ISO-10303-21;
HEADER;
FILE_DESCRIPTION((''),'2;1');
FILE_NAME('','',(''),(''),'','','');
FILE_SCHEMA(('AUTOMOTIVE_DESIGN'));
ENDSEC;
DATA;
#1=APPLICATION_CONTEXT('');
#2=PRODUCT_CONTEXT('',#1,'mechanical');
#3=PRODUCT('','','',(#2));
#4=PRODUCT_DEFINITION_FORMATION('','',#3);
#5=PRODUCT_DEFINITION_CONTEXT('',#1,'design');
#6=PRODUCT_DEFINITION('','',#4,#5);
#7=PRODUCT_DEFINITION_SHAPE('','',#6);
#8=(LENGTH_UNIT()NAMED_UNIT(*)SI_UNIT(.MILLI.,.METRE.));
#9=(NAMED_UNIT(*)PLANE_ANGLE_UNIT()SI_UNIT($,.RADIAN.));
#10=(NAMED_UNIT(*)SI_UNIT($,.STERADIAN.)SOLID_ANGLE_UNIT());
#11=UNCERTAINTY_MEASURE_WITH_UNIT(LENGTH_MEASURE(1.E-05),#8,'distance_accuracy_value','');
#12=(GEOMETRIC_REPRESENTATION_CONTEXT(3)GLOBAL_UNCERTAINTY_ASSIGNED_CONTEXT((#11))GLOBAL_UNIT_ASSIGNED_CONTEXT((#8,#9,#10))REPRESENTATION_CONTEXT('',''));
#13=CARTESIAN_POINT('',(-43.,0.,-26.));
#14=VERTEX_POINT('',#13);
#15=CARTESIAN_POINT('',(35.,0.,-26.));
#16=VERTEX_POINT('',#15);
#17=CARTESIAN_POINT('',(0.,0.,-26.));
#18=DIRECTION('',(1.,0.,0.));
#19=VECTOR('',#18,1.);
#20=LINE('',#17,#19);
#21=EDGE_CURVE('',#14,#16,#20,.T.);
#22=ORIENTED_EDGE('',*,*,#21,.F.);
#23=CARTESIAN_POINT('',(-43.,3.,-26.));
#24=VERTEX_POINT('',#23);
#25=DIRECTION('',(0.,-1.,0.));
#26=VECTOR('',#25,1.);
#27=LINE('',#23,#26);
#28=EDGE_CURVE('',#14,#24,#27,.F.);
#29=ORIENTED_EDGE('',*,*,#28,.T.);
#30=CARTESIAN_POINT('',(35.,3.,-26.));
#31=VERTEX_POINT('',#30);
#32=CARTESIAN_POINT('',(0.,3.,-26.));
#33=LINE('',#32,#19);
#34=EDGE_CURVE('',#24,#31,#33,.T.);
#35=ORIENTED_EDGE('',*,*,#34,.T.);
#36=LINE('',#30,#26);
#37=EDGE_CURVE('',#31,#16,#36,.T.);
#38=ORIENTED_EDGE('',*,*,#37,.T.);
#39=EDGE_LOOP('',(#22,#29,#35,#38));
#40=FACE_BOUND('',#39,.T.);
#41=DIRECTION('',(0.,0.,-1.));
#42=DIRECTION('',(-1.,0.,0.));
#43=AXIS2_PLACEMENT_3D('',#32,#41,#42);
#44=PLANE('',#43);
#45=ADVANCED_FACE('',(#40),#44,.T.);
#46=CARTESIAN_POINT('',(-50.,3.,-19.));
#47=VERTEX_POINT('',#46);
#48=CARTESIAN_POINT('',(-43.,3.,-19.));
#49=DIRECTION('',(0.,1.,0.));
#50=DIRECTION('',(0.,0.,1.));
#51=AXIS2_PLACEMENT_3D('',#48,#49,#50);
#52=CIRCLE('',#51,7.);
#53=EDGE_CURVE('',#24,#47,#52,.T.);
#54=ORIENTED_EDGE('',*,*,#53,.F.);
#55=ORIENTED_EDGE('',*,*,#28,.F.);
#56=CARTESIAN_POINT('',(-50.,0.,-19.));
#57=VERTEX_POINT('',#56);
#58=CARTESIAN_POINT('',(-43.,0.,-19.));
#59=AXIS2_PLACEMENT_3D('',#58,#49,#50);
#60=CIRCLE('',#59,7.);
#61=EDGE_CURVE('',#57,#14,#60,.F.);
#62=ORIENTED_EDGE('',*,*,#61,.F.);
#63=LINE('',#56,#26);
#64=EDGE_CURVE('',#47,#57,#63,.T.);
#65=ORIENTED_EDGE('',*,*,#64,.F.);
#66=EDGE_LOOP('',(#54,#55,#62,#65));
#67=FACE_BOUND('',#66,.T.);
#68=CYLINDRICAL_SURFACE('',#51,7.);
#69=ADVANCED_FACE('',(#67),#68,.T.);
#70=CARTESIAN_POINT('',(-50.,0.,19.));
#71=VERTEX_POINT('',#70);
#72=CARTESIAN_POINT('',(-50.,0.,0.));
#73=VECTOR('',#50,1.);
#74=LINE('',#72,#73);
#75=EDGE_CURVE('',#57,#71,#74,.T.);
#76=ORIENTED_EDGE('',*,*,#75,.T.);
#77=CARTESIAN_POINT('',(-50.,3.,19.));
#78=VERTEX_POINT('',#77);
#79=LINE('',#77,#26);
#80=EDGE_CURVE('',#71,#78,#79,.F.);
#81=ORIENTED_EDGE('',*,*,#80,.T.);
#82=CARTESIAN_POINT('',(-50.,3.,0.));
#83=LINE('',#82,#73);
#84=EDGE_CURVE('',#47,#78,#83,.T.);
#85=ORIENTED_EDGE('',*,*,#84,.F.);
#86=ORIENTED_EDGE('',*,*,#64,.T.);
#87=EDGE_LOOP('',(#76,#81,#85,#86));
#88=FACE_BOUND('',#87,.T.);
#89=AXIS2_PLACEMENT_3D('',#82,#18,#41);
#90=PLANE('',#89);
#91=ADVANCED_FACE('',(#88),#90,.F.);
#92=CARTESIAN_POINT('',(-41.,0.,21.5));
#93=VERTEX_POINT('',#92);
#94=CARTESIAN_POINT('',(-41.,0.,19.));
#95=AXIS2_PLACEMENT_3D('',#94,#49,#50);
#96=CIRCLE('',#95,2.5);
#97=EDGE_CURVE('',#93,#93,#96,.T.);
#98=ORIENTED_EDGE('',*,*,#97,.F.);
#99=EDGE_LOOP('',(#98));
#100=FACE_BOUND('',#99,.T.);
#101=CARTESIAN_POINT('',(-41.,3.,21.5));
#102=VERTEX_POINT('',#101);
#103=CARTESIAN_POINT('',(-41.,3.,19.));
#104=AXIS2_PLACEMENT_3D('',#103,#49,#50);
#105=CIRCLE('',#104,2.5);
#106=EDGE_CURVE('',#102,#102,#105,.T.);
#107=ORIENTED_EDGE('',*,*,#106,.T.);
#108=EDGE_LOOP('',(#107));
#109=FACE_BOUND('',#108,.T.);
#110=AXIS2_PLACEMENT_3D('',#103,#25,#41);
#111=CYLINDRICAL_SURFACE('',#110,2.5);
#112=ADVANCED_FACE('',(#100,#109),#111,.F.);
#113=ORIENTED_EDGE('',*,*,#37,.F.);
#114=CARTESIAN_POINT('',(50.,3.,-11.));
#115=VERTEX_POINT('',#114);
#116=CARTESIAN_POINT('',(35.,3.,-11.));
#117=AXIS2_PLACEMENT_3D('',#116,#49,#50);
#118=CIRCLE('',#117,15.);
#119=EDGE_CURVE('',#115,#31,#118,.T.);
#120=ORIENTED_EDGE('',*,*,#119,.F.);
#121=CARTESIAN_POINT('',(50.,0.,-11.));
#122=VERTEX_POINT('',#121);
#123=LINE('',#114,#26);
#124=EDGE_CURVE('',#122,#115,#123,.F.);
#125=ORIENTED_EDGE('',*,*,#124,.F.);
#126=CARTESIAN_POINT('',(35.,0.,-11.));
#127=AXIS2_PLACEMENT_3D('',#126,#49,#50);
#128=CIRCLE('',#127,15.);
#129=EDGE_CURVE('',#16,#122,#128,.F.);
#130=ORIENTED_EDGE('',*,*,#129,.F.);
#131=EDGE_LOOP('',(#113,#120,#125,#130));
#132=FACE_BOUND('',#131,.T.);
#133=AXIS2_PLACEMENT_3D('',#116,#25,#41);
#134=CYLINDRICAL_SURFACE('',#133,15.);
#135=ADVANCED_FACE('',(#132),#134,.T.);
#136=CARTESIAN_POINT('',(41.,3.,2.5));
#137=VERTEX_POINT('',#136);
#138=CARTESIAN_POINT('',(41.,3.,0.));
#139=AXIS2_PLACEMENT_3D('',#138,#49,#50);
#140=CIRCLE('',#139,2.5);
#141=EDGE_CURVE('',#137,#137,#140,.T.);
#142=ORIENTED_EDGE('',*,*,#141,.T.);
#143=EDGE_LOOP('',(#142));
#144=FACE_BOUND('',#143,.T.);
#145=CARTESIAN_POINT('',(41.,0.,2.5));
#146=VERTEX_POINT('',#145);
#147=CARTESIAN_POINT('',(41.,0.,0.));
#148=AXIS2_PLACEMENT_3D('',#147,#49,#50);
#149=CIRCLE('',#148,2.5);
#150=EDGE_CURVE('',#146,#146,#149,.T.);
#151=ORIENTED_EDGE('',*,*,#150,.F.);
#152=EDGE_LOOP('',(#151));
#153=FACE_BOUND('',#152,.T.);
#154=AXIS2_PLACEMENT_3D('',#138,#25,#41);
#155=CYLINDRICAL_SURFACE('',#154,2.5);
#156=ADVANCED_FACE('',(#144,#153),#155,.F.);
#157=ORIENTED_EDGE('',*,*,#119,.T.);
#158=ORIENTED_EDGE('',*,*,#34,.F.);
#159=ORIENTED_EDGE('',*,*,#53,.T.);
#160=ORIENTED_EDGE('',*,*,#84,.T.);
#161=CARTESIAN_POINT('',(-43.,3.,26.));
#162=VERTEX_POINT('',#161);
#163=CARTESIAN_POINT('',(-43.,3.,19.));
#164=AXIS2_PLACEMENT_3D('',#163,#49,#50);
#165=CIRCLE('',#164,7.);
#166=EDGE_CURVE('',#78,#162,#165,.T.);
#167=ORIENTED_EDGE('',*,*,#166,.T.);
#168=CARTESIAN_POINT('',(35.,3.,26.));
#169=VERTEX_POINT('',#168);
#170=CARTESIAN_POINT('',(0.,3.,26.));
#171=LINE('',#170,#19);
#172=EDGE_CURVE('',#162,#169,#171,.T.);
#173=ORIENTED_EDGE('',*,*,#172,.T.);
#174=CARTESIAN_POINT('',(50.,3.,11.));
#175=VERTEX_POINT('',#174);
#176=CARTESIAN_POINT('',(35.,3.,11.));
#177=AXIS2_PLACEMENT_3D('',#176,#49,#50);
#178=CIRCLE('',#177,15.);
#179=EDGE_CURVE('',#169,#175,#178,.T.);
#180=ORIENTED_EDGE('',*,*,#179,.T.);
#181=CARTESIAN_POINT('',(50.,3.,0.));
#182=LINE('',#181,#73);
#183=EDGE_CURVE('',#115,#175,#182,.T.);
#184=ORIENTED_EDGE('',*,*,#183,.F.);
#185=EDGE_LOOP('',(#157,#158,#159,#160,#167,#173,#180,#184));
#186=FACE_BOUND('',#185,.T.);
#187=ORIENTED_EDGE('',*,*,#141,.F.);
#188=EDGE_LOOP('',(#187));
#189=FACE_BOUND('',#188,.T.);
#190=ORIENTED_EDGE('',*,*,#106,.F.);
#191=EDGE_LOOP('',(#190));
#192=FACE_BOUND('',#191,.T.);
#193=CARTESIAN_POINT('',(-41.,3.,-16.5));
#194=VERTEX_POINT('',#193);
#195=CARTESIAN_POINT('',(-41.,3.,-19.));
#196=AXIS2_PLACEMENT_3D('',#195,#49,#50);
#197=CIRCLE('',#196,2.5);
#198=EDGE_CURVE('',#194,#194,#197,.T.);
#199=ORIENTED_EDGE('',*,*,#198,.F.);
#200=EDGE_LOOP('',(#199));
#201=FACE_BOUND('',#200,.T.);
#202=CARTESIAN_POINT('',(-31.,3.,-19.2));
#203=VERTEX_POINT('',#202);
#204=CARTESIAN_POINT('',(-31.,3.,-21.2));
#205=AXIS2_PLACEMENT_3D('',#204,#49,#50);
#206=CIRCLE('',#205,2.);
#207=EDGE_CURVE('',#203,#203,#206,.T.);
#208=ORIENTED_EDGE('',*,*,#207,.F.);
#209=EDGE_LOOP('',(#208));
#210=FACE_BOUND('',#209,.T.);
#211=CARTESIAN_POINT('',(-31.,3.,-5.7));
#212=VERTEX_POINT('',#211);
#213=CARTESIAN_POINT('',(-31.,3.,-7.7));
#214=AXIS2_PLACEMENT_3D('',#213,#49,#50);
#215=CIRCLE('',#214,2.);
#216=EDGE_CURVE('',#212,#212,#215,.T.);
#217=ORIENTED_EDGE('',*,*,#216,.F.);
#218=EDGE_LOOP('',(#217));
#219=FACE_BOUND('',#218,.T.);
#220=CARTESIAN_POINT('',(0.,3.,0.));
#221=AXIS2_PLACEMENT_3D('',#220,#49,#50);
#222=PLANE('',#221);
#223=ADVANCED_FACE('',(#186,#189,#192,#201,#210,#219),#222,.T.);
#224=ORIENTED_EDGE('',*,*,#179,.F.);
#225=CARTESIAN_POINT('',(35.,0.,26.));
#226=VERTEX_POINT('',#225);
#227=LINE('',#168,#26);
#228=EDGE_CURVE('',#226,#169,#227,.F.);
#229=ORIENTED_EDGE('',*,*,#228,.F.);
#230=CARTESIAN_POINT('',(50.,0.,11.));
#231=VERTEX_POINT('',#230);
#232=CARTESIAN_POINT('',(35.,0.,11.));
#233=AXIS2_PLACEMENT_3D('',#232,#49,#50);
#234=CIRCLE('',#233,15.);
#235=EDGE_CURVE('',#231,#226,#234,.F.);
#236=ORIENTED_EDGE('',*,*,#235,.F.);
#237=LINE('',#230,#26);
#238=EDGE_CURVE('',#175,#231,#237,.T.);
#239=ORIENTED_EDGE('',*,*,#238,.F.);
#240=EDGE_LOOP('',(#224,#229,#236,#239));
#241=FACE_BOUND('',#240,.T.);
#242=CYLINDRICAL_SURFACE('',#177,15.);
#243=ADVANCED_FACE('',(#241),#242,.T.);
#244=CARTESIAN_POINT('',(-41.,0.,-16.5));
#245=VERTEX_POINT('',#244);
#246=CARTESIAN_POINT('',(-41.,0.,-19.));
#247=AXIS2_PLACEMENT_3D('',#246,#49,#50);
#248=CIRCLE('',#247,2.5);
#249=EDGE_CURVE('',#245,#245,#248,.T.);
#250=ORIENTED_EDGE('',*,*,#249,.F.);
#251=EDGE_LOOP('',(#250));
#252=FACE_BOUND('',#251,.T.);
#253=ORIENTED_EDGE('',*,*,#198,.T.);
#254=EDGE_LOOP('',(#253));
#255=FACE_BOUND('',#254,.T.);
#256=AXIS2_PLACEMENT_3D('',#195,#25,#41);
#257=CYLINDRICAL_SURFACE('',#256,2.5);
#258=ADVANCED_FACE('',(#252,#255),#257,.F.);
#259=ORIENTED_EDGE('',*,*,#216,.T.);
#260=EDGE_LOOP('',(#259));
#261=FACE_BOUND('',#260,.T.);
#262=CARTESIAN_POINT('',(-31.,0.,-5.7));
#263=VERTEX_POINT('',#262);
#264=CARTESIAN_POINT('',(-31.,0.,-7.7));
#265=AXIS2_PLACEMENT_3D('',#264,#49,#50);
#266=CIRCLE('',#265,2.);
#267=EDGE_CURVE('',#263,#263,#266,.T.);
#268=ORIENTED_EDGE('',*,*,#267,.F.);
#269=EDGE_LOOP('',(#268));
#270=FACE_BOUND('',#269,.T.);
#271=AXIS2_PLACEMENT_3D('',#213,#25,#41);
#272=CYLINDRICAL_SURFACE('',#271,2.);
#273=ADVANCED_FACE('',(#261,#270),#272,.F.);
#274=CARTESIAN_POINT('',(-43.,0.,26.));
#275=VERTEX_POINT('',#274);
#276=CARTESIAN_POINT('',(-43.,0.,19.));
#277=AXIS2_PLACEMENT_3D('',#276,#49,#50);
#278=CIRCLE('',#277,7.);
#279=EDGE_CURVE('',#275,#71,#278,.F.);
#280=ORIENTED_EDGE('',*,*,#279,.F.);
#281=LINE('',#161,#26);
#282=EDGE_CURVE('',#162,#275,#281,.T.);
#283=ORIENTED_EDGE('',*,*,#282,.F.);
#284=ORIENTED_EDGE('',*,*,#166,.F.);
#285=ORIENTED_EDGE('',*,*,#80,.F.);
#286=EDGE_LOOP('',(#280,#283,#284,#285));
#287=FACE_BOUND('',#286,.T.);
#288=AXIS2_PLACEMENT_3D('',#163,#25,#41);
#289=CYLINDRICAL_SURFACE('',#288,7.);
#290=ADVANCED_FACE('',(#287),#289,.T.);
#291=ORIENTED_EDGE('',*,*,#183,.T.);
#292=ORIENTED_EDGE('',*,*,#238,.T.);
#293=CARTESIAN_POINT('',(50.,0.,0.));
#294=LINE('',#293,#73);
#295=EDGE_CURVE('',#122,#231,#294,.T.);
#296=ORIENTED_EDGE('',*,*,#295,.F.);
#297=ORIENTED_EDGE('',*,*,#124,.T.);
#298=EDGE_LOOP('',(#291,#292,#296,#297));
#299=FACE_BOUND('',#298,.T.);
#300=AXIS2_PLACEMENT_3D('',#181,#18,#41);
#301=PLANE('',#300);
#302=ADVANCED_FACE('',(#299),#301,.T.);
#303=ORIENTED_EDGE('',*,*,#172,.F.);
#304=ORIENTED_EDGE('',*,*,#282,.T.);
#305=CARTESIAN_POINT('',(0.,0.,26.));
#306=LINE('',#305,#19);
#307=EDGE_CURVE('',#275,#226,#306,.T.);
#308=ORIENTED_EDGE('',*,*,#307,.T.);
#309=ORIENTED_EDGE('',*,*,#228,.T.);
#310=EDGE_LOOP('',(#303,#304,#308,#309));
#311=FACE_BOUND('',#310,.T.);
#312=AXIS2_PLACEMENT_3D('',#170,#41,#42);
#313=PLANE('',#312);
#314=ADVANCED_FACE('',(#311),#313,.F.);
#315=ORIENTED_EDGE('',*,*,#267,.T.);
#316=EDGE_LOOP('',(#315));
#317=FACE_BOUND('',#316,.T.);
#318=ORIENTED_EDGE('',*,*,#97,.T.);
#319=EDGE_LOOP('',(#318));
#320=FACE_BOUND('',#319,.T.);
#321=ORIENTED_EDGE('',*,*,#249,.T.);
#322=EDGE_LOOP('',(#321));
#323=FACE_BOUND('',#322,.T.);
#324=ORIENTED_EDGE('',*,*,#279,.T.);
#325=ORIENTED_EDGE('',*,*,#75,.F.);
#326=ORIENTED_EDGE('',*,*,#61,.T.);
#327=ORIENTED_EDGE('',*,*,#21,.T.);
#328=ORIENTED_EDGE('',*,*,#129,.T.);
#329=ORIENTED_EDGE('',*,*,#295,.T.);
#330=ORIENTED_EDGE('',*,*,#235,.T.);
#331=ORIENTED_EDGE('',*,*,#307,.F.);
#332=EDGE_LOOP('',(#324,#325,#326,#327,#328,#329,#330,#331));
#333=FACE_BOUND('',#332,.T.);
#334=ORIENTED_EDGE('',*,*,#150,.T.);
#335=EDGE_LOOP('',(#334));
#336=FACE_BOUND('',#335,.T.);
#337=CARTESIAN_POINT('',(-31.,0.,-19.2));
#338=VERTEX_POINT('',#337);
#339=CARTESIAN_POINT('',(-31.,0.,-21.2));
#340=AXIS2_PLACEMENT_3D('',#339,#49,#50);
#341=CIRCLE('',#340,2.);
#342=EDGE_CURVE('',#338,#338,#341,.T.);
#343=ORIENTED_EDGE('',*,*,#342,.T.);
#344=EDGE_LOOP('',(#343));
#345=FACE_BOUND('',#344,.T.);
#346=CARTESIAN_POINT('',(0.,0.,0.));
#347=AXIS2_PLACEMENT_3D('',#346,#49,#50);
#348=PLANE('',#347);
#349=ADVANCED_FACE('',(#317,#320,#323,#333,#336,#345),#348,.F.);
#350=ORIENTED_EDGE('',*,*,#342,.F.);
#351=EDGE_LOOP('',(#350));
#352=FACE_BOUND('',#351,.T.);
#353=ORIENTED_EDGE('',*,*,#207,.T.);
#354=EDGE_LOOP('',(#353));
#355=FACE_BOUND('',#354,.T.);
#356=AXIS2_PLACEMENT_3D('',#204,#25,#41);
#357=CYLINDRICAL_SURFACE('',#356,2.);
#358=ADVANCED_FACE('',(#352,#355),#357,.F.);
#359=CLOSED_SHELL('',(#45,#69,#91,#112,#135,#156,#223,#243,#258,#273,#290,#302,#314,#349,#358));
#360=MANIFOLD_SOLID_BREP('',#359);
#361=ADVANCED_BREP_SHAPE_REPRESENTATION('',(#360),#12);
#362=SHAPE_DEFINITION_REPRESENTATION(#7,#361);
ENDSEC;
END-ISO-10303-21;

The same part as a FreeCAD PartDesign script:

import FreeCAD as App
import Part
import Sketcher

V = App.Vector
Q = App.Units.Quantity


def edges_at(feature, points):
    """Names of the edges that pass closest to the given points."""
    edges = feature.Shape.Edges
    near = lambda p: min(range(len(edges)), key=lambda i: edges[i].distToShape(Part.Vertex(*p))[0])
    return sorted({f"Edge{near(p) + 1}" for p in points})


def add_polygon(sketch, points):
    """Adds a closed chain of lines whose ends are joined by coincident constraints."""
    first, n = sketch.GeometryCount, len(points)
    for a, b in zip(points, points[1:] + points[:1]):
        sketch.addGeometry(Part.LineSegment(App.Vector(*a, 0), App.Vector(*b, 0)), False)
    for i in range(n):
        sketch.addConstraint(Sketcher.Constraint("Coincident", first + i, 2, first + (i + 1) % n, 1))

doc = App.newDocument("Part")
params = doc.addObject("Spreadsheet::Sheet", "Params")
for row, (alias, value) in enumerate([
    ("sketch1_diameter", "5 mm"),
    ("sketch1_diameter2", "4 mm"),
    ("sketch1_width", "100 mm"),
    ("sketch1_height", "52 mm"),
    ("pad1_length", "3 mm"),
    ("fillet_radius", "15 mm"),
    ("fillet2_radius", "7 mm"),
], start=1):
    params.set(f"A{row}", alias)
    params.set(f"B{row}", "=" + value)
    params.setAlias(f"B{row}", alias)

body = doc.addObject("PartDesign::Body", "Body")

sketch1 = body.newObject("Sketcher::SketchObject", "Sketch")
sketch1.AttachmentSupport = (doc.getObject("XZ_Plane"), [""])
sketch1.MapMode = "FlatFace"
add_polygon(sketch1, [(-50, -26), (-50, 26), (50, 26), (50, -26)])
sketch1.addGeometry(Part.Circle(V(-41, 19, 0), V(0, 0, 1), 2.5), False)
sketch1.addGeometry(Part.Circle(V(41, 0, 0), V(0, 0, 1), 2.5), False)
sketch1.addGeometry(Part.Circle(V(-31, -7.7, 0), V(0, 0, 1), 2), False)
sketch1.addGeometry(Part.Circle(V(-41, -19, 0), V(0, 0, 1), 2.5), False)
sketch1.addGeometry(Part.Circle(V(-31, -21.2, 0), V(0, 0, 1), 2), False)
sketch1.addConstraint(Sketcher.Constraint("Vertical", 0))
sketch1.addConstraint(Sketcher.Constraint("Horizontal", 1))
sketch1.addConstraint(Sketcher.Constraint("Vertical", 2))
sketch1.addConstraint(Sketcher.Constraint("Horizontal", 3))
sketch1.addConstraint(Sketcher.Constraint("Equal", 4, 5))
sketch1.addConstraint(Sketcher.Constraint("Equal", 5, 7))
sketch1.addConstraint(Sketcher.Constraint("Equal", 6, 8))
sketch1.addConstraint(Sketcher.Constraint("Symmetric", 0, 2, 2, 2, -1, 1))
sketch1.addConstraint(Sketcher.Constraint("Symmetric", 4, 3, 7, 3, -1))
sketch1.addConstraint(Sketcher.Constraint("PointOnObject", 5, 3, -1))
sketch1.addConstraint(Sketcher.Constraint("Vertical", 6, 3, 8, 3))
sketch1.addConstraint(Sketcher.Constraint("Diameter", 4, Q("5 mm")))
sketch1.addConstraint(Sketcher.Constraint("Diameter", 6, Q("4 mm")))
sketch1.addConstraint(Sketcher.Constraint("DistanceX", 1, 1, 1, 2, Q("100 mm")))
sketch1.addConstraint(Sketcher.Constraint("DistanceY", 0, 1, 0, 2, Q("52 mm")))
sketch1.addConstraint(Sketcher.Constraint("DistanceX", 4, 3, -1, 1, Q("41 mm")))
sketch1.addConstraint(Sketcher.Constraint("DistanceY", -1, 1, 4, 3, Q("19 mm")))
sketch1.addConstraint(Sketcher.Constraint("DistanceX", -1, 1, 5, 3, Q("41 mm")))
sketch1.addConstraint(Sketcher.Constraint("DistanceX", 6, 3, -1, 1, Q("31 mm")))
sketch1.addConstraint(Sketcher.Constraint("DistanceY", 6, 3, -1, 1, Q("7.7 mm")))
sketch1.addConstraint(Sketcher.Constraint("DistanceY", 8, 3, -1, 1, Q("21.2 mm")))
sketch1.setExpression("Constraints[15]", "Params.sketch1_diameter")
sketch1.setExpression("Constraints[16]", "Params.sketch1_diameter2")
sketch1.setExpression("Constraints[17]", "Params.sketch1_width")
sketch1.setExpression("Constraints[18]", "Params.sketch1_height")
pad1 = body.newObject("PartDesign::Pad", "Pad")
pad1.Profile = sketch1
pad1.setExpression("Length", "Params.pad1_length")
pad1.Reversed = True
doc.recompute()

fillet = body.newObject("PartDesign::Fillet", "Fillet")
fillet.Base = (pad1, edges_at(pad1, [(50, 1.5, 26), (50, 1.5, -26)]))
fillet.setExpression("Radius", "Params.fillet_radius")
doc.recompute()

fillet2 = body.newObject("PartDesign::Fillet", "Fillet001")
fillet2.Base = (fillet, edges_at(fillet, [(-50, 1.5, 26), (-50, 1.5, -26)]))
fillet2.setExpression("Radius", "Params.fillet2_radius")

doc.recompute()
